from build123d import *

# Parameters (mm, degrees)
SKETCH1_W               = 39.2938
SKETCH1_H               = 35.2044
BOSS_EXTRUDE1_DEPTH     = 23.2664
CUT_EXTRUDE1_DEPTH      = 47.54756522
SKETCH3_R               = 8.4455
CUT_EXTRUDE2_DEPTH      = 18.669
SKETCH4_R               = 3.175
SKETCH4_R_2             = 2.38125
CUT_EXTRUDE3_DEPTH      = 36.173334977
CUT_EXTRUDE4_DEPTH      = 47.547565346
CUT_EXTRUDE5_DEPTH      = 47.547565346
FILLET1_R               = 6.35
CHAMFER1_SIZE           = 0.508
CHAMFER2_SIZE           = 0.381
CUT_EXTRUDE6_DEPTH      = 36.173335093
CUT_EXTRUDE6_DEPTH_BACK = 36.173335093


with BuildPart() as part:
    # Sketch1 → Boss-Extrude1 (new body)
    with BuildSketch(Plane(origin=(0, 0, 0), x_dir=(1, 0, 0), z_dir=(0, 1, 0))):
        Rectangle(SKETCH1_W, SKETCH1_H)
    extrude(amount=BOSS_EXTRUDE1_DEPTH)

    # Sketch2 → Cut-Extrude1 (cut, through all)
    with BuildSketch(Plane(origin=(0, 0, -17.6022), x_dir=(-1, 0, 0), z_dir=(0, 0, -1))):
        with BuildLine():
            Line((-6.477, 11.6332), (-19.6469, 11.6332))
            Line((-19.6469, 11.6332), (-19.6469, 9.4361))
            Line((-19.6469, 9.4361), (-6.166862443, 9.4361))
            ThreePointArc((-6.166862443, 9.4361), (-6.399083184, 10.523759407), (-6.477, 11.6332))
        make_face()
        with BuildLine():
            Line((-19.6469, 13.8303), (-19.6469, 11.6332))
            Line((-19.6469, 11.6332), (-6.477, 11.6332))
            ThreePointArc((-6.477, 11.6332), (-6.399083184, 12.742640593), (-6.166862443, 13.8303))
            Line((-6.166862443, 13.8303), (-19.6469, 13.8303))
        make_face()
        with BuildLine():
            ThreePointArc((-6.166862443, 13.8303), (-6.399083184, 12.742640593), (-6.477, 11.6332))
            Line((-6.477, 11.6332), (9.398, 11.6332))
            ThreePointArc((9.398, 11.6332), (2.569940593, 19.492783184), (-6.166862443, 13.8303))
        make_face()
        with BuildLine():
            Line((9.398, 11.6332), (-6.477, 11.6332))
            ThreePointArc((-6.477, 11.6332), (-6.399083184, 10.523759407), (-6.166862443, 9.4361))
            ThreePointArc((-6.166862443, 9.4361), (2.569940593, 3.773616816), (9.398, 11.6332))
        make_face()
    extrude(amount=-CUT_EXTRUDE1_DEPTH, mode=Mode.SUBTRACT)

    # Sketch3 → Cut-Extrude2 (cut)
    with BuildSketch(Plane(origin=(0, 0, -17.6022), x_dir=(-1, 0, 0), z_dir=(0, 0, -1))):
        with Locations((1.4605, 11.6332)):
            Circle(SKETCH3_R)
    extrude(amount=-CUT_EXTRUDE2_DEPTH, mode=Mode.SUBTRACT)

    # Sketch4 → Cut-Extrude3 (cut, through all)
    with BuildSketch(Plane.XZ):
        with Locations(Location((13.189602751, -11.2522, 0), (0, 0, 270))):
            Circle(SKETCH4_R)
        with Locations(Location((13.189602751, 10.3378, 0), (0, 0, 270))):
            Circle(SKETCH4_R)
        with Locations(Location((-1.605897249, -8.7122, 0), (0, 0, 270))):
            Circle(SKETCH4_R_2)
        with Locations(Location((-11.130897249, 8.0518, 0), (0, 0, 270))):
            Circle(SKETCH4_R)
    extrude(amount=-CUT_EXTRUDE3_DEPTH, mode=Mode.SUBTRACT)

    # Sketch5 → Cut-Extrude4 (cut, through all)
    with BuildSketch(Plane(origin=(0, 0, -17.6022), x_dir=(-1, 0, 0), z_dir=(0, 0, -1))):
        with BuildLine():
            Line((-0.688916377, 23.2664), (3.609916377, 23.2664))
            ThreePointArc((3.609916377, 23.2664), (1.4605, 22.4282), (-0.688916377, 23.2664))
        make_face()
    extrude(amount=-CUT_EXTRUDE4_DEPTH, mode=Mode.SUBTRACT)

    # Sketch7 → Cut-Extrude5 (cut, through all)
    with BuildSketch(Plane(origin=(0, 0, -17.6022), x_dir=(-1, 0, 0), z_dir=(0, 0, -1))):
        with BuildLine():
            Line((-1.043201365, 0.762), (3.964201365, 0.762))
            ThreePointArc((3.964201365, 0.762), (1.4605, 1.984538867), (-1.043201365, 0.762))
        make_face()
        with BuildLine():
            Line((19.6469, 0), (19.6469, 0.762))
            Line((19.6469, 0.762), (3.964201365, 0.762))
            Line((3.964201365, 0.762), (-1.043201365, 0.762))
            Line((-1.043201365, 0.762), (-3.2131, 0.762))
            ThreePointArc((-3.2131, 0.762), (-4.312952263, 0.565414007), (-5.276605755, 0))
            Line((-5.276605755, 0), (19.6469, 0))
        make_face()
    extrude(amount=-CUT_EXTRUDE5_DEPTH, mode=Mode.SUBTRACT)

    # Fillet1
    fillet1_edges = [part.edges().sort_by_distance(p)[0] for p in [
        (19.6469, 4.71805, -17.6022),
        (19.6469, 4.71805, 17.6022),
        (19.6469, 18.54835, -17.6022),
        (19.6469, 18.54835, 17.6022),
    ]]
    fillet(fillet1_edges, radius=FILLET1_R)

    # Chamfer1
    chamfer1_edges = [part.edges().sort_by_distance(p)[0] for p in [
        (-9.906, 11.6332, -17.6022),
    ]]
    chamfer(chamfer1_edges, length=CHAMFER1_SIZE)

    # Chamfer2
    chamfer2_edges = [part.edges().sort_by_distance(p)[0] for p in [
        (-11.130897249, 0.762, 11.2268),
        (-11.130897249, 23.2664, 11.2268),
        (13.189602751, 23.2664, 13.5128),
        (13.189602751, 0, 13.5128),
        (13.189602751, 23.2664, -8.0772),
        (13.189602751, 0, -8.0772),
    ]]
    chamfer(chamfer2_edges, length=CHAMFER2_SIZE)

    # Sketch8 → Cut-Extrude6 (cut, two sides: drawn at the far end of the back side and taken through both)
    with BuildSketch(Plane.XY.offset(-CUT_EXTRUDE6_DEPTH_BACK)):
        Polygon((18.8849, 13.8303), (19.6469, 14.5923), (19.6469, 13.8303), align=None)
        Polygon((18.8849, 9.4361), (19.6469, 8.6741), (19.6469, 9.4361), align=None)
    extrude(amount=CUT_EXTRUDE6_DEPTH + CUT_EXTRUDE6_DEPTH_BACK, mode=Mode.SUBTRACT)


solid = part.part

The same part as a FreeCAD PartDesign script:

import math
import FreeCAD as App
import Part
import Sketcher
Q = App.Units.Quantity


def edges_at(feature, points):
    """Names of the edges that pass closest to the given points."""
    edges = feature.Shape.Edges
    near = lambda p: min(range(len(edges)), key=lambda i: edges[i].distToShape(Part.Vertex(*p))[0])
    return sorted({f"Edge{near(p) + 1}" for p in points})

doc = App.newDocument("Part")
body = doc.addObject("PartDesign::Body", "Body")

# Sketch on XZ plane
sketch1 = body.newObject("Sketcher::SketchObject", "Sketch")
sketch1.AttachmentSupport = (doc.getObject("XZ_Plane"), [""])
sketch1.MapMode = "FlatFace"
sketch1.addGeometry([
    Part.LineSegment(App.Vector(-20, -18, 0), App.Vector(-20, 18, 0)),
    Part.LineSegment(App.Vector(-20, 18, 0), App.Vector(20, 18, 0)),
    Part.LineSegment(App.Vector(20, 18, 0), App.Vector(20, -18, 0)),
    Part.LineSegment(App.Vector(20, -18, 0), App.Vector(-20, -18, 0)),
], False)
sketch1.addConstraint([
    Sketcher.Constraint("Coincident", 0, 2, 1, 1),
    Sketcher.Constraint("Coincident", 1, 2, 2, 1),
    Sketcher.Constraint("Coincident", 2, 2, 3, 1),
    Sketcher.Constraint("Coincident", 3, 2, 0, 1),
    Sketcher.Constraint("Vertical", 0),
    Sketcher.Constraint("Horizontal", 1),
    Sketcher.Constraint("Vertical", 2),
    Sketcher.Constraint("Horizontal", 3),
    Sketcher.Constraint("Symmetric", 0, 2, 2, 2, -1, 1),
    Sketcher.Constraint("DistanceX", 1, 1, 1, 2, Q("1.547 in")),
    Sketcher.Constraint("DistanceY", 0, 1, 0, 2, Q("1.386 in")),
])
pad1 = body.newObject("PartDesign::Pad", "Pad")
pad1.Profile = sketch1
pad1.Length = Q("0.916 in")
pad1.Reversed = True

# Sketch on XY plane
sketch2 = body.newObject("Sketcher::SketchObject", "Sketch001")
sketch2.AttachmentSupport = (doc.getObject("XY_Plane"), [""])
sketch2.MapMode = "FlatFace"
sketch2.AttachmentOffset = App.Placement(App.Vector(0, 0, -0.693 * 25.4), App.Rotation())
sketch2.addGeometry([
    Part.LineSegment(App.Vector(6.2, 13.8, 0), App.Vector(19.6, 13.8, 0)),  # 0
    Part.LineSegment(App.Vector(19.6, 13.8, 0), App.Vector(19.6, 9.4, 0)),  # 1
    Part.LineSegment(App.Vector(19.6, 9.4, 0), App.Vector(6.2, 9.4, 0)),  # 2
    Part.ArcOfCircle(Part.Circle(App.Vector(-1.5, 11.6, 0), App.Vector(0, 0, 1), 7.9), math.radians(180), math.radians(344)),  # 3
    Part.ArcOfCircle(Part.Circle(App.Vector(-1.5, 11.6, 0), App.Vector(0, 0, 1), 7.9), math.radians(16), math.radians(180)),  # 4
], False)
sketch2.addConstraint([
    Sketcher.Constraint("Coincident", 0, 2, 1, 1),
    Sketcher.Constraint("Coincident", 1, 2, 2, 1),
    Sketcher.Constraint("Coincident", 2, 2, 3, 2),
    Sketcher.Constraint("Tangent", 3, 1, 4, 2),
    Sketcher.Constraint("Coincident", 4, 1, 0, 1),
    Sketcher.Constraint("Horizontal", 0),
    Sketcher.Constraint("Vertical", 1),
    Sketcher.Constraint("Horizontal", 2),
    Sketcher.Constraint("Equal", 3, 4),
    Sketcher.Constraint("Horizontal", 4, 3, 3, 1),
    Sketcher.Constraint("Vertical", 2, 2, 4, 1),
    Sketcher.Constraint("Radius", 3, Q("0.3125 in")),
    Sketcher.Constraint("DistanceY", 1, 2, 1, 1, Q("0.173 in")),
    Sketcher.Constraint("DistanceX", 3, 1, -1, 1, Q("0.37 in")),
    Sketcher.Constraint("DistanceY", -1, 1, 3, 3, Q("0.458 in")),
    Sketcher.Constraint("DistanceX", 4, 3, 0, 2, Q("0.831 in")),
])
pocket1 = body.newObject("PartDesign::Pocket", "Pocket")
pocket1.Profile = sketch2
pocket1.Type = "ThroughAll"
pocket1.Reversed = True

# Sketch on XY plane
sketch3 = body.newObject("Sketcher::SketchObject", "Sketch002")
sketch3.AttachmentSupport = (doc.getObject("XY_Plane"), [""])
sketch3.MapMode = "FlatFace"
sketch3.AttachmentOffset = App.Placement(App.Vector(0, 0, -0.693 * 25.4), App.Rotation())
sketch3.addGeometry(Part.Circle(App.Vector(-1, 12, 0), App.Vector(0, 0, 1), 8), False)
sketch3.addConstraint([
    Sketcher.Constraint("Diameter", 0, Q("0.665 in")),
    Sketcher.Constraint("DistanceY", -1, 1, 0, 3, Q("0.458 in")),
    Sketcher.Constraint("DistanceX", 0, 3, -1, 1, Q("0.0575 in")),
])
pocket2 = body.newObject("PartDesign::Pocket", "Pocket001")
pocket2.Profile = sketch3
pocket2.Length = Q("0.735 in")
pocket2.Reversed = True

# Sketch on XZ plane
sketch4 = body.newObject("Sketcher::SketchObject", "Sketch003")
sketch4.AttachmentSupport = (doc.getObject("XZ_Plane"), [""])
sketch4.MapMode = "FlatFace"
sketch4.addGeometry([
    Part.Circle(App.Vector(13.2, -11.3, 0), App.Vector(0, 0, 1), 3.2),
    Part.Circle(App.Vector(13.2, 10.3, 0), App.Vector(0, 0, 1), 3.2),
    Part.Circle(App.Vector(-1.6, -8.7, 0), App.Vector(0, 0, 1), 2.4),
    Part.Circle(App.Vector(-11.1, 8.1, 0), App.Vector(0, 0, 1), 3.2),
], False)
sketch4.addConstraint([
    Sketcher.Constraint("Equal", 0, 1),
    Sketcher.Constraint("Equal", 1, 3),
    Sketcher.Constraint("Vertical", 0, 3, 1, 3),
    Sketcher.Constraint("Diameter", 0, Q("0.25 in")),
    Sketcher.Constraint("Diameter", 2, Q("0.1875 in")),
    Sketcher.Constraint("DistanceY", 0, 3, 2, 3, Q("0.1 in")),
    Sketcher.Constraint("DistanceY", 0, 3, 1, 3, Q("0.85 in")),
    Sketcher.Constraint("DistanceY", 2, 3, 3, 3, Q("0.66 in")),
    Sketcher.Constraint("DistanceY", 0, 3, -1, 1, Q("0.443 in")),
    Sketcher.Constraint("DistanceX", 3, 3, 2, 3, Q("0.375 in")),
    Sketcher.Constraint("DistanceX", 2, 3, 0, 3, Q("0.5825 in")),
    Sketcher.Constraint("DistanceX", -1, 1, 0, 3, 13.189603),
])
pocket3 = body.newObject("PartDesign::Pocket", "Pocket002")
pocket3.Profile = sketch4
pocket3.Type = "ThroughAll"

# Sketch on XY plane
sketch5 = body.newObject("Sketcher::SketchObject", "Sketch004")
sketch5.AttachmentSupport = (doc.getObject("XY_Plane"), [""])
sketch5.MapMode = "FlatFace"
sketch5.AttachmentOffset = App.Placement(App.Vector(0, 0, -0.693 * 25.4), App.Rotation())
sketch5.addGeometry([
    Part.LineSegment(App.Vector(-3.6, 23.3, 0), App.Vector(0.7, 23.3, 0)),
    Part.ArcOfCircle(Part.Circle(App.Vector(-1.5, 25.6, 0), App.Vector(0, 0, 1), 3.2), math.radians(-133), math.radians(-47)),
], False)
sketch5.addConstraint([
    Sketcher.Constraint("Coincident", 0, 1, 1, 1),
    Sketcher.Constraint("Coincident", 1, 2, 0, 2),
    Sketcher.Constraint("Horizontal", 0),
    Sketcher.Constraint("Radius", 1, Q("0.125 in")),
    Sketcher.Constraint("DistanceY", -1, 1, 1, 3, Q("1.008 in")),
    Sketcher.Constraint("DistanceY", -1, 1, 0, 1, Q("0.916 in")),
    Sketcher.Constraint("DistanceX", 1, 3, -1, 1, Q("0.0575 in")),
])
pocket4 = body.newObject("PartDesign::Pocket", "Pocket003")
pocket4.Profile = sketch5
pocket4.Type = "ThroughAll"
pocket4.Reversed = True

# Sketch on XY plane
sketch6 = body.newObject("Sketcher::SketchObject", "Sketch005")
sketch6.AttachmentSupport = (doc.getObject("XY_Plane"), [""])
sketch6.MapMode = "FlatFace"
sketch6.AttachmentOffset = App.Placement(App.Vector(0, 0, -0.693 * 25.4), App.Rotation())
sketch6.addGeometry([
    Part.ArcOfCircle(Part.Circle(App.Vector(-1.5, -1.2, 0), App.Vector(0, 0, 1), 3.2), math.radians(38), math.radians(142)),  # 0
    Part.LineSegment(App.Vector(1, 0.8, 0), App.Vector(3.2, 0.8, 0)),  # 1
    Part.ArcOfCircle(Part.Circle(App.Vector(3.2, -2.4, 0), App.Vector(0, 0, 1), 3.2), math.radians(49), math.radians(90)),  # 2
    Part.LineSegment(App.Vector(5.3, 0, 0), App.Vector(-19.6, 0, 0)),  # 3
    Part.LineSegment(App.Vector(-19.6, 0, 0), App.Vector(-19.6, 0.8, 0)),  # 4
    Part.LineSegment(App.Vector(-19.6, 0.8, 0), App.Vector(-4, 0.8, 0)),  # 5
], False)
sketch6.addConstraint([
    Sketcher.Constraint("Coincident", 0, 1, 1, 1),
    Sketcher.Constraint("Tangent", 1, 2, 2, 2),
    Sketcher.Constraint("Coincident", 2, 1, 3, 1),
    Sketcher.Constraint("Coincident", 3, 2, 4, 1),
    Sketcher.Constraint("Coincident", 4, 2, 5, 1),
    Sketcher.Constraint("Coincident", 5, 2, 0, 2),
    Sketcher.Constraint("Horizontal", 1),
    Sketcher.Constraint("Horizontal", 3),
    Sketcher.Constraint("Vertical", 4),
    Sketcher.Constraint("Horizontal", 5),
    Sketcher.Constraint("Equal", 0, 2),
    Sketcher.Constraint("PointOnObject", 2, 1, -1),
    Sketcher.Constraint("Horizontal", 1, 2, 4, 2),
    Sketcher.Constraint("Radius", 0, Q("0.125 in")),
    Sketcher.Constraint("DistanceY", 4, 1, 4, 2, Q("0.03 in")),
    Sketcher.Constraint("DistanceX", 3, 2, 1, 2, Q("0.9 in")),
    Sketcher.Constraint("DistanceX", 0, 3, 2, 3, Q("0.184 in")),
    Sketcher.Constraint("DistanceX", 1, 1, 1, 2, 2.169899),
    Sketcher.Constraint("DistanceX", 0, 3, -1, 1, Q("0.0575 in")),
])
pocket5 = body.newObject("PartDesign::Pocket", "Pocket004")
pocket5.Profile = sketch6
pocket5.Type = "ThroughAll"
pocket5.Reversed = True
doc.recompute()

fillet = body.newObject("PartDesign::Fillet", "Fillet")
fillet.Base = (pocket5, edges_at(pocket5, [
    (19.647, 4.718, -17.602),
    (19.647, 4.718, 17.602),
    (19.647, 18.548, -17.602),
    (19.647, 18.548, 17.602),
]))
fillet.Radius = Q("0.25 in")
doc.recompute()

chamfer = body.newObject("PartDesign::Chamfer", "Chamfer")
chamfer.Base = (fillet, edges_at(fillet, [(-9.906, 11.633, -17.602)]))
chamfer.Size = Q("0.02 in")
doc.recompute()

chamfer2 = body.newObject("PartDesign::Chamfer", "Chamfer001")
chamfer2.Base = (chamfer, edges_at(chamfer, [
    (-11.131, 0.762, 11.227),
    (-11.131, 23.266, 11.227),
    (13.19, 23.266, 13.513),
    (13.19, 0, 13.513),
    (13.19, 23.266, -8.077),
    (13.19, 0, -8.077),
]))
chamfer2.Size = Q("0.015 in")

# Sketch on XY plane
sketch7 = body.newObject("Sketcher::SketchObject", "Sketch006")
sketch7.AttachmentSupport = (doc.getObject("XY_Plane"), [""])
sketch7.MapMode = "FlatFace"
sketch7.addGeometry([
    Part.LineSegment(App.Vector(19.6, 14.6, 0), App.Vector(18.9, 13.8, 0)),  # 0
    Part.LineSegment(App.Vector(18.9, 13.8, 0), App.Vector(19.6, 13.8, 0)),  # 1
    Part.LineSegment(App.Vector(19.6, 13.8, 0), App.Vector(19.6, 14.6, 0)),  # 2
    Part.LineSegment(App.Vector(18.9, 9.4, 0), App.Vector(19.6, 8.7, 0)),  # 3
    Part.LineSegment(App.Vector(19.6, 8.7, 0), App.Vector(19.6, 9.4, 0)),  # 4
    Part.LineSegment(App.Vector(19.6, 9.4, 0), App.Vector(18.9, 9.4, 0)),  # 5
], False)
sketch7.addConstraint([
    Sketcher.Constraint("Coincident", 0, 2, 1, 1),
    Sketcher.Constraint("Coincident", 1, 2, 2, 1),
    Sketcher.Constraint("Coincident", 2, 2, 0, 1),
    Sketcher.Constraint("Coincident", 3, 2, 4, 1),
    Sketcher.Constraint("Coincident", 4, 2, 5, 1),
    Sketcher.Constraint("Coincident", 5, 2, 3, 1),
    Sketcher.Constraint("Horizontal", 1),
    Sketcher.Constraint("Vertical", 2),
    Sketcher.Constraint("Vertical", 4),
    Sketcher.Constraint("Horizontal", 5),
    Sketcher.Constraint("Perpendicular", 0, 3),
    Sketcher.Constraint("Vertical", 2, 2, 3, 2),
    Sketcher.Constraint("Vertical", 0, 2, 5, 2),
    Sketcher.Constraint("Equal", 5, 2),
    Sketcher.Constraint("DistanceX", 1, 1, 1, 2, Q("0.03 in")),
    Sketcher.Constraint("DistanceY", 3, 2, 1, 2, Q("0.203 in")),
    Sketcher.Constraint("DistanceX", -1, 1, 0, 2, Q("0.7435 in")),
    Sketcher.Constraint("DistanceY", -1, 1, 0, 2, Q("0.5445 in")),
])
pocket6 = body.newObject("PartDesign::Pocket", "Pocket005")
pocket6.Profile = sketch7
pocket6.Type = "ThroughAll"
pocket6.Midplane = True

doc.recompute()
